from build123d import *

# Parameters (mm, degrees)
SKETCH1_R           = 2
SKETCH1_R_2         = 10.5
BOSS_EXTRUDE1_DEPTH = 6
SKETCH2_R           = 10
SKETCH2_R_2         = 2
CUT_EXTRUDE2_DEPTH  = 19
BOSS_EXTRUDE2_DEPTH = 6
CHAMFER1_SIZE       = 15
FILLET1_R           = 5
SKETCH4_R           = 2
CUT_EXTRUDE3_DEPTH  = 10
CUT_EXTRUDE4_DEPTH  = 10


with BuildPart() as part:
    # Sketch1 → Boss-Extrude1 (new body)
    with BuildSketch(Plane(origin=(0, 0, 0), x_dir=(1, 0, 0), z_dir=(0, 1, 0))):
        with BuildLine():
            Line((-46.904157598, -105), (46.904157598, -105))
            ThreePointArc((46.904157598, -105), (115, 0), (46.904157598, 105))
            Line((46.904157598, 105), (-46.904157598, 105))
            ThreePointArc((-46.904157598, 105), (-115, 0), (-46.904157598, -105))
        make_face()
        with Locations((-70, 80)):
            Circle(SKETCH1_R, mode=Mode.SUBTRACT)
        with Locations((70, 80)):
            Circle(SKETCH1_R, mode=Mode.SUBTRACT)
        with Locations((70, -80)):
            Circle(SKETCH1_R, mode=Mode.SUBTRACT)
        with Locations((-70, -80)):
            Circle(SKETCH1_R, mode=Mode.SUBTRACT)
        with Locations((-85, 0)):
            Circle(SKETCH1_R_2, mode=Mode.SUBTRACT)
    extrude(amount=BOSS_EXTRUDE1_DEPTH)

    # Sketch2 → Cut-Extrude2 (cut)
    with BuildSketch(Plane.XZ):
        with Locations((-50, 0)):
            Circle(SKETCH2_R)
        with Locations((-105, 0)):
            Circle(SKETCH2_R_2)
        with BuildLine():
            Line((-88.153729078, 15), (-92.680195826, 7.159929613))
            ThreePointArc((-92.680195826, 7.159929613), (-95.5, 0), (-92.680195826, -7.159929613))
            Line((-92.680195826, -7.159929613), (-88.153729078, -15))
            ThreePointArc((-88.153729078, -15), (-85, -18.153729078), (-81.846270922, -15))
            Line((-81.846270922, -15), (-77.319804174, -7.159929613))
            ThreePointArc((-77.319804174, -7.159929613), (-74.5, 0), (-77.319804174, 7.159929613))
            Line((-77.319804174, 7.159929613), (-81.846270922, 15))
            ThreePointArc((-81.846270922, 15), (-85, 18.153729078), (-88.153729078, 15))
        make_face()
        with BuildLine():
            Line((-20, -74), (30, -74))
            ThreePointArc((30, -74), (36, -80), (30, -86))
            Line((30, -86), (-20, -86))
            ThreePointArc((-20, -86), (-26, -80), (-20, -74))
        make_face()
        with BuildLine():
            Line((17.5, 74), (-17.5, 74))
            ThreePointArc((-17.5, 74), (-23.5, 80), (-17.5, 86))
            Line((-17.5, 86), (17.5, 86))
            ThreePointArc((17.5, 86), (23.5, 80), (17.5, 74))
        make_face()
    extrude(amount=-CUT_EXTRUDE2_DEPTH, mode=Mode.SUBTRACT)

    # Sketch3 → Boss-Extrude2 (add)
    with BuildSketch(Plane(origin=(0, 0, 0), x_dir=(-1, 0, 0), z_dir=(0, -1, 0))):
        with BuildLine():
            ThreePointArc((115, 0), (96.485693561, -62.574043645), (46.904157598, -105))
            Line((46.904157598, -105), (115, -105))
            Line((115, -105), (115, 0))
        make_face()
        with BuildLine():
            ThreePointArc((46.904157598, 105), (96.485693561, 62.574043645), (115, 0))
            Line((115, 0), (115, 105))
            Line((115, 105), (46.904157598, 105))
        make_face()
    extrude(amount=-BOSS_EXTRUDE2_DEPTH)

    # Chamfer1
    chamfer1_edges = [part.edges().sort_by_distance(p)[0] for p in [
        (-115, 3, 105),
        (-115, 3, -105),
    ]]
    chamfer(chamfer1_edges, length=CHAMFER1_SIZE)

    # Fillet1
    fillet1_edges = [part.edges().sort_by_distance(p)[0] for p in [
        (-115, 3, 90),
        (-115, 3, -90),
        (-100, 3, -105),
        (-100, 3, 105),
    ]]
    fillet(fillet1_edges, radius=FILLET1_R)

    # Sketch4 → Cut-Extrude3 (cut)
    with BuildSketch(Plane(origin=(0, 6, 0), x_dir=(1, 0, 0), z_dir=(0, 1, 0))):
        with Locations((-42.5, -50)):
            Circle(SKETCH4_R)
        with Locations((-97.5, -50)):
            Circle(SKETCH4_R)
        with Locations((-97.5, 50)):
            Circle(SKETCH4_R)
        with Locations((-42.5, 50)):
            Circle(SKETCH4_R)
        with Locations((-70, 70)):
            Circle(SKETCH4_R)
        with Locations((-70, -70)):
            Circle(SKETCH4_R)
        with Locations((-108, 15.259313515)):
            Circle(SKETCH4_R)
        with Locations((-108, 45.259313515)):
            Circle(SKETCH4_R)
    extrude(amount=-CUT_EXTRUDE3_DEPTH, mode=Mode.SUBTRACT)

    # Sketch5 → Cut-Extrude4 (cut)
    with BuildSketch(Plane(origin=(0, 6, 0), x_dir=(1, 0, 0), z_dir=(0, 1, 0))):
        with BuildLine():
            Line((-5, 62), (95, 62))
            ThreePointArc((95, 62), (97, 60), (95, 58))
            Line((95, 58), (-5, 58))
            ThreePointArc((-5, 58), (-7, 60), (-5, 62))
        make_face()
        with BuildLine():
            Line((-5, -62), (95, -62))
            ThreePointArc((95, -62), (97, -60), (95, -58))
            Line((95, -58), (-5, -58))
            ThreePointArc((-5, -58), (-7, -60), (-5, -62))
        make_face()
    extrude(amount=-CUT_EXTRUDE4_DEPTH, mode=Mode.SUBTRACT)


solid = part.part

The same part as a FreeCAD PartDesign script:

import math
import FreeCAD as App
import Part
import Sketcher

V = App.Vector
Q = App.Units.Quantity


def edges_at(feature, points):
    """Names of the edges that pass closest to the given points."""
    edges = feature.Shape.Edges
    near = lambda p: min(range(len(edges)), key=lambda i: edges[i].distToShape(Part.Vertex(*p))[0])
    return sorted({f"Edge{near(p) + 1}" for p in points})

doc = App.newDocument("Part")
body = doc.addObject("PartDesign::Body", "Body")

sketch1 = doc.addObject("Sketcher::SketchObject", "Sketch")
body.addObject(sketch1)
sketch1.AttachmentSupport = (doc.XZ_Plane, [""])
sketch1.MapMode = "FlatFace"
sketch1.addGeometry(Part.LineSegment(V(-46.9, 105, 0), V(46.9, 105, 0)), False)
sketch1.addGeometry(Part.ArcOfCircle(Part.Circle(V(0, 0, 0), V(0, 0, 1), 115), math.radians(-66), math.radians(66)), False)
sketch1.addGeometry(Part.LineSegment(V(46.9, -105, 0), V(-46.9, -105, 0)), False)
sketch1.addGeometry(Part.ArcOfCircle(Part.Circle(V(0, 0, 0), V(0, 0, 1), 115), math.radians(114), math.radians(246)), False)
sketch1.addGeometry(Part.Circle(V(-70, 80, 0), V(0, 0, 1), 2), False)
sketch1.addGeometry(Part.Circle(V(70, 80, 0), V(0, 0, 1), 2), False)
sketch1.addGeometry(Part.Circle(V(-85, 0, 0), V(0, 0, 1), 10.5), False)
sketch1.addGeometry(Part.Circle(V(-70, -80, 0), V(0, 0, 1), 2), False)
sketch1.addGeometry(Part.Circle(V(70, -80, 0), V(0, 0, 1), 2), False)
sketch1.addConstraint(Sketcher.Constraint("Coincident", 0, 2, 1, 2))
sketch1.addConstraint(Sketcher.Constraint("Coincident", 1, 1, 2, 1))
sketch1.addConstraint(Sketcher.Constraint("Coincident", 2, 2, 3, 2))
sketch1.addConstraint(Sketcher.Constraint("Coincident", 3, 1, 0, 1))
sketch1.addConstraint(Sketcher.Constraint("Horizontal", 0))
sketch1.addConstraint(Sketcher.Constraint("Horizontal", 2))
sketch1.addConstraint(Sketcher.Constraint("Coincident", 1, 3, -1, 1))
sketch1.addConstraint(Sketcher.Constraint("Coincident", 3, 3, -1, 1))
sketch1.addConstraint(Sketcher.Constraint("Equal", 1, 3))
sketch1.addConstraint(Sketcher.Constraint("Equal", 4, 5))
sketch1.addConstraint(Sketcher.Constraint("Equal", 5, 7))
sketch1.addConstraint(Sketcher.Constraint("Equal", 7, 8))
sketch1.addConstraint(Sketcher.Constraint("Symmetric", 5, 3, 7, 3, -1, 1))
sketch1.addConstraint(Sketcher.Constraint("Symmetric", 4, 3, 8, 3, -1, 1))
sketch1.addConstraint(Sketcher.Constraint("Symmetric", 4, 3, 5, 3, -2))
sketch1.addConstraint(Sketcher.Constraint("PointOnObject", 6, 3, -1))
sketch1.addConstraint(Sketcher.Constraint("Vertical", 0, 2, 1, 1))
sketch1.addConstraint(Sketcher.Constraint("Diameter", 4, 4.0))
sketch1.addConstraint(Sketcher.Constraint("Diameter", 6, 21.0))
sketch1.addConstraint(Sketcher.Constraint("Radius", 1, 115.0))
sketch1.addConstraint(Sketcher.Constraint("DistanceX", 4, 3, -1, 1, 70.0))
sketch1.addConstraint(Sketcher.Constraint("DistanceY", -1, 1, 4, 3, 80.0))
sketch1.addConstraint(Sketcher.Constraint("DistanceX", 6, 3, -1, 1, 85.0))
sketch1.addConstraint(Sketcher.Constraint("DistanceY", -1, 1, 0, 2, 105.0))
pad1 = doc.addObject("PartDesign::Pad", "Pad")
body.addObject(pad1)
pad1.Profile = sketch1
pad1.Length = 6
pad1.Reversed = True

sketch2 = doc.addObject("Sketcher::SketchObject", "Sketch001")
body.addObject(sketch2)
sketch2.AttachmentSupport = (doc.XZ_Plane, [""])
sketch2.MapMode = "FlatFace"
sketch2.addGeometry(Part.Circle(V(-50, 0, 0), V(0, 0, 1), 10), False)
sketch2.addGeometry(Part.Circle(V(-105, 0, 0), V(0, 0, 1), 2), False)
sketch2.addGeometry(Part.LineSegment(V(-88.2, 15, 0), V(-92.7, 7.2, 0)), False)
sketch2.addGeometry(Part.ArcOfCircle(Part.Circle(V(-85, 0, 0), V(0, 0, 1), 10.5), math.radians(137), math.radians(223)), False)
sketch2.addGeometry(Part.LineSegment(V(-92.7, -7.2, 0), V(-88.2, -15, 0)), False)
sketch2.addGeometry(Part.ArcOfCircle(Part.Circle(V(-85, -15, 0), V(0, 0, 1), 3.2), math.radians(180), math.radians(360)), False)
sketch2.addGeometry(Part.LineSegment(V(-81.8, -15, 0), V(-77.3, -7.2, 0)), False)
sketch2.addGeometry(Part.ArcOfCircle(Part.Circle(V(-85, 0, 0), V(0, 0, 1), 10.5), math.radians(-43), math.radians(43)), False)
sketch2.addGeometry(Part.LineSegment(V(-77.3, 7.2, 0), V(-81.8, 15, 0)), False)
sketch2.addGeometry(Part.ArcOfCircle(Part.Circle(V(-85, 15, 0), V(0, 0, 1), 3.2), math.radians(0), math.radians(180)), False)
sketch2.addGeometry(Part.LineSegment(V(30, -74, 0), V(-20, -74, 0)), False)
sketch2.addGeometry(Part.ArcOfCircle(Part.Circle(V(-20, -80, 0), V(0, 0, 1), 6), math.radians(90), math.radians(270)), False)
sketch2.addGeometry(Part.LineSegment(V(-20, -86, 0), V(30, -86, 0)), False)
sketch2.addGeometry(Part.ArcOfCircle(Part.Circle(V(30, -80, 0), V(0, 0, 1), 6), math.radians(-90), math.radians(90)), False)
sketch2.addGeometry(Part.LineSegment(V(-17.5, 74, 0), V(17.5, 74, 0)), False)
sketch2.addGeometry(Part.ArcOfCircle(Part.Circle(V(17.5, 80, 0), V(0, 0, 1), 6), math.radians(-90), math.radians(90)), False)
sketch2.addGeometry(Part.LineSegment(V(17.5, 86, 0), V(-17.5, 86, 0)), False)
sketch2.addGeometry(Part.ArcOfCircle(Part.Circle(V(-17.5, 80, 0), V(0, 0, 1), 6), math.radians(90), math.radians(270)), False)
sketch2.addConstraint(Sketcher.Constraint("Coincident", 2, 2, 3, 1))
sketch2.addConstraint(Sketcher.Constraint("Coincident", 3, 2, 4, 1))
sketch2.addConstraint(Sketcher.Constraint("Coincident", 4, 2, 5, 1))
sketch2.addConstraint(Sketcher.Constraint("Coincident", 5, 2, 6, 1))
sketch2.addConstraint(Sketcher.Constraint("Coincident", 6, 2, 7, 1))
sketch2.addConstraint(Sketcher.Constraint("Coincident", 7, 2, 8, 1))
sketch2.addConstraint(Sketcher.Constraint("Coincident", 8, 2, 9, 1))
sketch2.addConstraint(Sketcher.Constraint("Coincident", 9, 2, 2, 1))
sketch2.addConstraint(Sketcher.Constraint("Tangent", 10, 2, 11, 1))
sketch2.addConstraint(Sketcher.Constraint("Tangent", 11, 2, 12, 1))
sketch2.addConstraint(Sketcher.Constraint("Tangent", 12, 2, 13, 1))
sketch2.addConstraint(Sketcher.Constraint("Tangent", 13, 2, 10, 1))
sketch2.addConstraint(Sketcher.Constraint("Tangent", 14, 2, 15, 1))
sketch2.addConstraint(Sketcher.Constraint("Tangent", 15, 2, 16, 1))
sketch2.addConstraint(Sketcher.Constraint("Tangent", 16, 2, 17, 1))
sketch2.addConstraint(Sketcher.Constraint("Tangent", 17, 2, 14, 1))
sketch2.addConstraint(Sketcher.Constraint("Horizontal", 10))
sketch2.addConstraint(Sketcher.Constraint("Horizontal", 12))
sketch2.addConstraint(Sketcher.Constraint("Horizontal", 14))
sketch2.addConstraint(Sketcher.Constraint("Horizontal", 16))
sketch2.addConstraint(Sketcher.Constraint("Coincident", 7, 3, 3, 3))
sketch2.addConstraint(Sketcher.Constraint("Equal", 3, 7))
sketch2.addConstraint(Sketcher.Constraint("Equal", 5, 9))
sketch2.addConstraint(Sketcher.Constraint("Equal", 13, 15))
sketch2.addConstraint(Sketcher.Constraint("Symmetric", 5, 3, 9, 3, -1))
sketch2.addConstraint(Sketcher.Constraint("Symmetric", 2, 2, 3, 2, -1))
sketch2.addConstraint(Sketcher.Constraint("PointOnObject", 0, 3, -1))
sketch2.addConstraint(Sketcher.Constraint("PointOnObject", 1, 3, -1))
sketch2.addConstraint(Sketcher.Constraint("Parallel", 2, 6))
sketch2.addConstraint(Sketcher.Constraint("Parallel", 4, 8))
sketch2.addConstraint(Sketcher.Constraint("Horizontal", 5, 3, 4, 2))
sketch2.addConstraint(Sketcher.Constraint("Horizontal", 4, 2, 5, 2))
sketch2.addConstraint(Sketcher.Constraint("Horizontal", 3, 2, 6, 2))
sketch2.addConstraint(Sketcher.Constraint("Horizontal", 2, 2, 7, 2))
sketch2.addConstraint(Sketcher.Constraint("Horizontal", 9, 3, 8, 2))
sketch2.addConstraint(Sketcher.Constraint("Diameter", 0, 20.0))
sketch2.addConstraint(Sketcher.Constraint("Diameter", 1, 4.0))
sketch2.addConstraint(Sketcher.Constraint("Radius", 11, 6.0))
sketch2.addConstraint(Sketcher.Constraint("Radius", 3, 10.5))
sketch2.addConstraint(Sketcher.Constraint("DistanceX", 10, 2, 10, 1, 50.0))
sketch2.addConstraint(Sketcher.Constraint("DistanceX", 14, 1, 14, 2, 35.0))
sketch2.addConstraint(Sketcher.Constraint("Angle", 2, Q("-120 deg")))
sketch2.addConstraint(Sketcher.Constraint("DistanceX", 0, 3, -1, 1, 50.0))
sketch2.addConstraint(Sketcher.Constraint("DistanceX", 1, 3, -1, 1, 105.0))
sketch2.addConstraint(Sketcher.Constraint("DistanceX", 3, 3, -1, 1, 85.0))
sketch2.addConstraint(Sketcher.Constraint("DistanceY", 5, 3, -1, 1, 15.0))
sketch2.addConstraint(Sketcher.Constraint("DistanceX", 11, 3, -1, 1, 20.0))
sketch2.addConstraint(Sketcher.Constraint("DistanceY", 11, 3, -1, 1, 80.0))
sketch2.addConstraint(Sketcher.Constraint("DistanceY", -1, 1, 15, 3, 80.0))
sketch2.addConstraint(Sketcher.Constraint("DistanceX", -1, 1, 15, 3, 17.5))
sketch2.addConstraint(Sketcher.Constraint("Radius", 5, 3.153729))
pocket1 = doc.addObject("PartDesign::Pocket", "Pocket")
body.addObject(pocket1)
pocket1.Profile = sketch2
pocket1.Length = 19

sketch3 = doc.addObject("Sketcher::SketchObject", "Sketch002")
body.addObject(sketch3)
sketch3.AttachmentSupport = (doc.XZ_Plane, [""])
sketch3.MapMode = "FlatFace"
sketch3.addGeometry(Part.ArcOfCircle(Part.Circle(V(0, 0, 0), V(0, 0, 1), 115), math.radians(114), math.radians(180)), False)
sketch3.addGeometry(Part.LineSegment(V(-47, 105, 0), V(-115, 105, 0)), False)
sketch3.addGeometry(Part.LineSegment(V(-115, 105, 0), V(-115, 0, 0)), False)
sketch3.addGeometry(Part.ArcOfCircle(Part.Circle(V(0, 0, 0), V(0, 0, 1), 115), math.radians(180), math.radians(246)), False)
sketch3.addGeometry(Part.LineSegment(V(-115, 0, 0), V(-115, -105, 0)), False)
sketch3.addGeometry(Part.LineSegment(V(-115, -105, 0), V(-47, -105, 0)), False)
sketch3.addConstraint(Sketcher.Constraint("Coincident", 0, 1, 1, 1))
sketch3.addConstraint(Sketcher.Constraint("Coincident", 1, 2, 2, 1))
sketch3.addConstraint(Sketcher.Constraint("Tangent", 2, 2, 0, 2))
sketch3.addConstraint(Sketcher.Constraint("Tangent", 3, 1, 4, 1))
sketch3.addConstraint(Sketcher.Constraint("Coincident", 4, 2, 5, 1))
sketch3.addConstraint(Sketcher.Constraint("Coincident", 5, 2, 3, 2))
sketch3.addConstraint(Sketcher.Constraint("Horizontal", 1))
sketch3.addConstraint(Sketcher.Constraint("Vertical", 2))
sketch3.addConstraint(Sketcher.Constraint("Vertical", 4))
sketch3.addConstraint(Sketcher.Constraint("Horizontal", 5))
sketch3.addConstraint(Sketcher.Constraint("Coincident", 0, 3, -1, 1))
sketch3.addConstraint(Sketcher.Constraint("Coincident", 3, 3, -1, 1))
sketch3.addConstraint(Sketcher.Constraint("Equal", 0, 3))
sketch3.addConstraint(Sketcher.Constraint("Vertical", 0, 1, 5, 2))
sketch3.addConstraint(Sketcher.Constraint("Radius", 0, 115.0))
sketch3.addConstraint(Sketcher.Constraint("DistanceY", 2, 2, 2, 1, 105.0))
pad2 = doc.addObject("PartDesign::Pad", "Pad001")
body.addObject(pad2)
pad2.Profile = sketch3
pad2.Length = 6
pad2.Reversed = True
doc.recompute()

chamfer = doc.addObject("PartDesign::Chamfer", "Chamfer")
body.addObject(chamfer)
chamfer.Base = (pad2, edges_at(pad2, [(-115, 3, 105), (-115, 3, -105)]))
chamfer.Size = 15
doc.recompute()

fillet = doc.addObject("PartDesign::Fillet", "Fillet")
body.addObject(fillet)
fillet.Base = (chamfer, edges_at(chamfer, [
    (-115, 3, 90),
    (-115, 3, -90),
    (-100, 3, -105),
    (-100, 3, 105),
]))
fillet.Radius = 5

sketch4 = doc.addObject("Sketcher::SketchObject", "Sketch003")
body.addObject(sketch4)
sketch4.AttachmentSupport = (doc.XZ_Plane, [""])
sketch4.MapMode = "FlatFace"
sketch4.AttachmentOffset = App.Placement(V(0, 0, -6), App.Rotation())
sketch4.addGeometry(Part.Circle(V(-42.5, 50, 0), V(0, 0, 1), 2), False)
sketch4.addGeometry(Part.Circle(V(-97.5, 50, 0), V(0, 0, 1), 2), False)
sketch4.addGeometry(Part.Circle(V(-97.5, -50, 0), V(0, 0, 1), 2), False)
sketch4.addGeometry(Part.Circle(V(-42.5, -50, 0), V(0, 0, 1), 2), False)
sketch4.addGeometry(Part.Circle(V(-70, -70, 0), V(0, 0, 1), 2), False)
sketch4.addGeometry(Part.Circle(V(-70, 70, 0), V(0, 0, 1), 2), False)
sketch4.addGeometry(Part.Circle(V(-108, -15.3, 0), V(0, 0, 1), 2), False)
sketch4.addGeometry(Part.Circle(V(-108, -45.3, 0), V(0, 0, 1), 2), False)
sketch4.addConstraint(Sketcher.Constraint("Equal", 0, 1))
sketch4.addConstraint(Sketcher.Constraint("Equal", 1, 2))
sketch4.addConstraint(Sketcher.Constraint("Equal", 2, 3))
sketch4.addConstraint(Sketcher.Constraint("Equal", 3, 4))
sketch4.addConstraint(Sketcher.Constraint("Equal", 4, 5))
sketch4.addConstraint(Sketcher.Constraint("Equal", 5, 6))
sketch4.addConstraint(Sketcher.Constraint("Equal", 6, 7))
sketch4.addConstraint(Sketcher.Constraint("Symmetric", 1, 3, 2, 3, -1))
sketch4.addConstraint(Sketcher.Constraint("Symmetric", 0, 3, 3, 3, -1))
sketch4.addConstraint(Sketcher.Constraint("Symmetric", 4, 3, 5, 3, -1))
sketch4.addConstraint(Sketcher.Constraint("Horizontal", 0, 3, 1, 3))
sketch4.addConstraint(Sketcher.Constraint("Vertical", 6, 3, 7, 3))
sketch4.addConstraint(Sketcher.Constraint("Diameter", 0, 4.0))
sketch4.addConstraint(Sketcher.Constraint("DistanceY", -1, 1, 0, 3, 50.0))
sketch4.addConstraint(Sketcher.Constraint("DistanceX", 4, 3, -1, 1, 70.0))
sketch4.addConstraint(Sketcher.Constraint("DistanceY", 4, 3, -1, 1, 70.0))
sketch4.addConstraint(Sketcher.Constraint("DistanceX", 6, 3, -1, 1, 108.0))
sketch4.addConstraint(Sketcher.Constraint("DistanceX", 1, 3, 0, 3, 55.0))
sketch4.addConstraint(Sketcher.Constraint("DistanceY", 7, 3, 6, 3, 30.0))
sketch4.addConstraint(Sketcher.Constraint("DistanceX", 0, 3, -1, 1, 42.5))
sketch4.addConstraint(Sketcher.Constraint("DistanceY", 6, 3, -1, 1, 15.259314))
pocket2 = doc.addObject("PartDesign::Pocket", "Pocket001")
body.addObject(pocket2)
pocket2.Profile = sketch4
pocket2.Length = 10
pocket2.Reversed = True

sketch5 = doc.addObject("Sketcher::SketchObject", "Sketch004")
body.addObject(sketch5)
sketch5.AttachmentSupport = (doc.XZ_Plane, [""])
sketch5.MapMode = "FlatFace"
sketch5.AttachmentOffset = App.Placement(V(0, 0, -6), App.Rotation())
sketch5.addGeometry(Part.LineSegment(V(95, -62, 0), V(-5, -62, 0)), False)
sketch5.addGeometry(Part.ArcOfCircle(Part.Circle(V(-5, -60, 0), V(0, 0, 1), 2), math.radians(90), math.radians(270)), False)
sketch5.addGeometry(Part.LineSegment(V(-5, -58, 0), V(95, -58, 0)), False)
sketch5.addGeometry(Part.ArcOfCircle(Part.Circle(V(95, -60, 0), V(0, 0, 1), 2), math.radians(-90), math.radians(90)), False)
sketch5.addGeometry(Part.LineSegment(V(-5, 62, 0), V(95, 62, 0)), False)
sketch5.addGeometry(Part.ArcOfCircle(Part.Circle(V(95, 60, 0), V(0, 0, 1), 2), math.radians(-90), math.radians(90)), False)
sketch5.addGeometry(Part.LineSegment(V(95, 58, 0), V(-5, 58, 0)), False)
sketch5.addGeometry(Part.ArcOfCircle(Part.Circle(V(-5, 60, 0), V(0, 0, 1), 2), math.radians(90), math.radians(270)), False)
sketch5.addConstraint(Sketcher.Constraint("Tangent", 0, 2, 1, 2))
sketch5.addConstraint(Sketcher.Constraint("Tangent", 1, 1, 2, 1))
sketch5.addConstraint(Sketcher.Constraint("Tangent", 2, 2, 3, 2))
sketch5.addConstraint(Sketcher.Constraint("Tangent", 3, 1, 0, 1))
sketch5.addConstraint(Sketcher.Constraint("Tangent", 4, 2, 5, 2))
sketch5.addConstraint(Sketcher.Constraint("Tangent", 5, 1, 6, 1))
sketch5.addConstraint(Sketcher.Constraint("Tangent", 6, 2, 7, 2))
sketch5.addConstraint(Sketcher.Constraint("Tangent", 7, 1, 4, 1))
sketch5.addConstraint(Sketcher.Constraint("Horizontal", 0))
sketch5.addConstraint(Sketcher.Constraint("Horizontal", 2))
sketch5.addConstraint(Sketcher.Constraint("Horizontal", 4))
sketch5.addConstraint(Sketcher.Constraint("Horizontal", 6))
sketch5.addConstraint(Sketcher.Constraint("Equal", 3, 5))
sketch5.addConstraint(Sketcher.Constraint("Symmetric", 3, 3, 5, 3, -1))
sketch5.addConstraint(Sketcher.Constraint("Vertical", 1, 3, 7, 3))
sketch5.addConstraint(Sketcher.Constraint("Radius", 1, 2.0))
sketch5.addConstraint(Sketcher.Constraint("DistanceX", 0, 2, 0, 1, 100.0))
sketch5.addConstraint(Sketcher.Constraint("DistanceX", 1, 3, -1, 1, 5.0))
sketch5.addConstraint(Sketcher.Constraint("DistanceY", 1, 3, -1, 1, 60.0))
pocket3 = doc.addObject("PartDesign::Pocket", "Pocket002")
body.addObject(pocket3)
pocket3.Profile = sketch5
pocket3.Length = 10
pocket3.Reversed = True

doc.recompute()
